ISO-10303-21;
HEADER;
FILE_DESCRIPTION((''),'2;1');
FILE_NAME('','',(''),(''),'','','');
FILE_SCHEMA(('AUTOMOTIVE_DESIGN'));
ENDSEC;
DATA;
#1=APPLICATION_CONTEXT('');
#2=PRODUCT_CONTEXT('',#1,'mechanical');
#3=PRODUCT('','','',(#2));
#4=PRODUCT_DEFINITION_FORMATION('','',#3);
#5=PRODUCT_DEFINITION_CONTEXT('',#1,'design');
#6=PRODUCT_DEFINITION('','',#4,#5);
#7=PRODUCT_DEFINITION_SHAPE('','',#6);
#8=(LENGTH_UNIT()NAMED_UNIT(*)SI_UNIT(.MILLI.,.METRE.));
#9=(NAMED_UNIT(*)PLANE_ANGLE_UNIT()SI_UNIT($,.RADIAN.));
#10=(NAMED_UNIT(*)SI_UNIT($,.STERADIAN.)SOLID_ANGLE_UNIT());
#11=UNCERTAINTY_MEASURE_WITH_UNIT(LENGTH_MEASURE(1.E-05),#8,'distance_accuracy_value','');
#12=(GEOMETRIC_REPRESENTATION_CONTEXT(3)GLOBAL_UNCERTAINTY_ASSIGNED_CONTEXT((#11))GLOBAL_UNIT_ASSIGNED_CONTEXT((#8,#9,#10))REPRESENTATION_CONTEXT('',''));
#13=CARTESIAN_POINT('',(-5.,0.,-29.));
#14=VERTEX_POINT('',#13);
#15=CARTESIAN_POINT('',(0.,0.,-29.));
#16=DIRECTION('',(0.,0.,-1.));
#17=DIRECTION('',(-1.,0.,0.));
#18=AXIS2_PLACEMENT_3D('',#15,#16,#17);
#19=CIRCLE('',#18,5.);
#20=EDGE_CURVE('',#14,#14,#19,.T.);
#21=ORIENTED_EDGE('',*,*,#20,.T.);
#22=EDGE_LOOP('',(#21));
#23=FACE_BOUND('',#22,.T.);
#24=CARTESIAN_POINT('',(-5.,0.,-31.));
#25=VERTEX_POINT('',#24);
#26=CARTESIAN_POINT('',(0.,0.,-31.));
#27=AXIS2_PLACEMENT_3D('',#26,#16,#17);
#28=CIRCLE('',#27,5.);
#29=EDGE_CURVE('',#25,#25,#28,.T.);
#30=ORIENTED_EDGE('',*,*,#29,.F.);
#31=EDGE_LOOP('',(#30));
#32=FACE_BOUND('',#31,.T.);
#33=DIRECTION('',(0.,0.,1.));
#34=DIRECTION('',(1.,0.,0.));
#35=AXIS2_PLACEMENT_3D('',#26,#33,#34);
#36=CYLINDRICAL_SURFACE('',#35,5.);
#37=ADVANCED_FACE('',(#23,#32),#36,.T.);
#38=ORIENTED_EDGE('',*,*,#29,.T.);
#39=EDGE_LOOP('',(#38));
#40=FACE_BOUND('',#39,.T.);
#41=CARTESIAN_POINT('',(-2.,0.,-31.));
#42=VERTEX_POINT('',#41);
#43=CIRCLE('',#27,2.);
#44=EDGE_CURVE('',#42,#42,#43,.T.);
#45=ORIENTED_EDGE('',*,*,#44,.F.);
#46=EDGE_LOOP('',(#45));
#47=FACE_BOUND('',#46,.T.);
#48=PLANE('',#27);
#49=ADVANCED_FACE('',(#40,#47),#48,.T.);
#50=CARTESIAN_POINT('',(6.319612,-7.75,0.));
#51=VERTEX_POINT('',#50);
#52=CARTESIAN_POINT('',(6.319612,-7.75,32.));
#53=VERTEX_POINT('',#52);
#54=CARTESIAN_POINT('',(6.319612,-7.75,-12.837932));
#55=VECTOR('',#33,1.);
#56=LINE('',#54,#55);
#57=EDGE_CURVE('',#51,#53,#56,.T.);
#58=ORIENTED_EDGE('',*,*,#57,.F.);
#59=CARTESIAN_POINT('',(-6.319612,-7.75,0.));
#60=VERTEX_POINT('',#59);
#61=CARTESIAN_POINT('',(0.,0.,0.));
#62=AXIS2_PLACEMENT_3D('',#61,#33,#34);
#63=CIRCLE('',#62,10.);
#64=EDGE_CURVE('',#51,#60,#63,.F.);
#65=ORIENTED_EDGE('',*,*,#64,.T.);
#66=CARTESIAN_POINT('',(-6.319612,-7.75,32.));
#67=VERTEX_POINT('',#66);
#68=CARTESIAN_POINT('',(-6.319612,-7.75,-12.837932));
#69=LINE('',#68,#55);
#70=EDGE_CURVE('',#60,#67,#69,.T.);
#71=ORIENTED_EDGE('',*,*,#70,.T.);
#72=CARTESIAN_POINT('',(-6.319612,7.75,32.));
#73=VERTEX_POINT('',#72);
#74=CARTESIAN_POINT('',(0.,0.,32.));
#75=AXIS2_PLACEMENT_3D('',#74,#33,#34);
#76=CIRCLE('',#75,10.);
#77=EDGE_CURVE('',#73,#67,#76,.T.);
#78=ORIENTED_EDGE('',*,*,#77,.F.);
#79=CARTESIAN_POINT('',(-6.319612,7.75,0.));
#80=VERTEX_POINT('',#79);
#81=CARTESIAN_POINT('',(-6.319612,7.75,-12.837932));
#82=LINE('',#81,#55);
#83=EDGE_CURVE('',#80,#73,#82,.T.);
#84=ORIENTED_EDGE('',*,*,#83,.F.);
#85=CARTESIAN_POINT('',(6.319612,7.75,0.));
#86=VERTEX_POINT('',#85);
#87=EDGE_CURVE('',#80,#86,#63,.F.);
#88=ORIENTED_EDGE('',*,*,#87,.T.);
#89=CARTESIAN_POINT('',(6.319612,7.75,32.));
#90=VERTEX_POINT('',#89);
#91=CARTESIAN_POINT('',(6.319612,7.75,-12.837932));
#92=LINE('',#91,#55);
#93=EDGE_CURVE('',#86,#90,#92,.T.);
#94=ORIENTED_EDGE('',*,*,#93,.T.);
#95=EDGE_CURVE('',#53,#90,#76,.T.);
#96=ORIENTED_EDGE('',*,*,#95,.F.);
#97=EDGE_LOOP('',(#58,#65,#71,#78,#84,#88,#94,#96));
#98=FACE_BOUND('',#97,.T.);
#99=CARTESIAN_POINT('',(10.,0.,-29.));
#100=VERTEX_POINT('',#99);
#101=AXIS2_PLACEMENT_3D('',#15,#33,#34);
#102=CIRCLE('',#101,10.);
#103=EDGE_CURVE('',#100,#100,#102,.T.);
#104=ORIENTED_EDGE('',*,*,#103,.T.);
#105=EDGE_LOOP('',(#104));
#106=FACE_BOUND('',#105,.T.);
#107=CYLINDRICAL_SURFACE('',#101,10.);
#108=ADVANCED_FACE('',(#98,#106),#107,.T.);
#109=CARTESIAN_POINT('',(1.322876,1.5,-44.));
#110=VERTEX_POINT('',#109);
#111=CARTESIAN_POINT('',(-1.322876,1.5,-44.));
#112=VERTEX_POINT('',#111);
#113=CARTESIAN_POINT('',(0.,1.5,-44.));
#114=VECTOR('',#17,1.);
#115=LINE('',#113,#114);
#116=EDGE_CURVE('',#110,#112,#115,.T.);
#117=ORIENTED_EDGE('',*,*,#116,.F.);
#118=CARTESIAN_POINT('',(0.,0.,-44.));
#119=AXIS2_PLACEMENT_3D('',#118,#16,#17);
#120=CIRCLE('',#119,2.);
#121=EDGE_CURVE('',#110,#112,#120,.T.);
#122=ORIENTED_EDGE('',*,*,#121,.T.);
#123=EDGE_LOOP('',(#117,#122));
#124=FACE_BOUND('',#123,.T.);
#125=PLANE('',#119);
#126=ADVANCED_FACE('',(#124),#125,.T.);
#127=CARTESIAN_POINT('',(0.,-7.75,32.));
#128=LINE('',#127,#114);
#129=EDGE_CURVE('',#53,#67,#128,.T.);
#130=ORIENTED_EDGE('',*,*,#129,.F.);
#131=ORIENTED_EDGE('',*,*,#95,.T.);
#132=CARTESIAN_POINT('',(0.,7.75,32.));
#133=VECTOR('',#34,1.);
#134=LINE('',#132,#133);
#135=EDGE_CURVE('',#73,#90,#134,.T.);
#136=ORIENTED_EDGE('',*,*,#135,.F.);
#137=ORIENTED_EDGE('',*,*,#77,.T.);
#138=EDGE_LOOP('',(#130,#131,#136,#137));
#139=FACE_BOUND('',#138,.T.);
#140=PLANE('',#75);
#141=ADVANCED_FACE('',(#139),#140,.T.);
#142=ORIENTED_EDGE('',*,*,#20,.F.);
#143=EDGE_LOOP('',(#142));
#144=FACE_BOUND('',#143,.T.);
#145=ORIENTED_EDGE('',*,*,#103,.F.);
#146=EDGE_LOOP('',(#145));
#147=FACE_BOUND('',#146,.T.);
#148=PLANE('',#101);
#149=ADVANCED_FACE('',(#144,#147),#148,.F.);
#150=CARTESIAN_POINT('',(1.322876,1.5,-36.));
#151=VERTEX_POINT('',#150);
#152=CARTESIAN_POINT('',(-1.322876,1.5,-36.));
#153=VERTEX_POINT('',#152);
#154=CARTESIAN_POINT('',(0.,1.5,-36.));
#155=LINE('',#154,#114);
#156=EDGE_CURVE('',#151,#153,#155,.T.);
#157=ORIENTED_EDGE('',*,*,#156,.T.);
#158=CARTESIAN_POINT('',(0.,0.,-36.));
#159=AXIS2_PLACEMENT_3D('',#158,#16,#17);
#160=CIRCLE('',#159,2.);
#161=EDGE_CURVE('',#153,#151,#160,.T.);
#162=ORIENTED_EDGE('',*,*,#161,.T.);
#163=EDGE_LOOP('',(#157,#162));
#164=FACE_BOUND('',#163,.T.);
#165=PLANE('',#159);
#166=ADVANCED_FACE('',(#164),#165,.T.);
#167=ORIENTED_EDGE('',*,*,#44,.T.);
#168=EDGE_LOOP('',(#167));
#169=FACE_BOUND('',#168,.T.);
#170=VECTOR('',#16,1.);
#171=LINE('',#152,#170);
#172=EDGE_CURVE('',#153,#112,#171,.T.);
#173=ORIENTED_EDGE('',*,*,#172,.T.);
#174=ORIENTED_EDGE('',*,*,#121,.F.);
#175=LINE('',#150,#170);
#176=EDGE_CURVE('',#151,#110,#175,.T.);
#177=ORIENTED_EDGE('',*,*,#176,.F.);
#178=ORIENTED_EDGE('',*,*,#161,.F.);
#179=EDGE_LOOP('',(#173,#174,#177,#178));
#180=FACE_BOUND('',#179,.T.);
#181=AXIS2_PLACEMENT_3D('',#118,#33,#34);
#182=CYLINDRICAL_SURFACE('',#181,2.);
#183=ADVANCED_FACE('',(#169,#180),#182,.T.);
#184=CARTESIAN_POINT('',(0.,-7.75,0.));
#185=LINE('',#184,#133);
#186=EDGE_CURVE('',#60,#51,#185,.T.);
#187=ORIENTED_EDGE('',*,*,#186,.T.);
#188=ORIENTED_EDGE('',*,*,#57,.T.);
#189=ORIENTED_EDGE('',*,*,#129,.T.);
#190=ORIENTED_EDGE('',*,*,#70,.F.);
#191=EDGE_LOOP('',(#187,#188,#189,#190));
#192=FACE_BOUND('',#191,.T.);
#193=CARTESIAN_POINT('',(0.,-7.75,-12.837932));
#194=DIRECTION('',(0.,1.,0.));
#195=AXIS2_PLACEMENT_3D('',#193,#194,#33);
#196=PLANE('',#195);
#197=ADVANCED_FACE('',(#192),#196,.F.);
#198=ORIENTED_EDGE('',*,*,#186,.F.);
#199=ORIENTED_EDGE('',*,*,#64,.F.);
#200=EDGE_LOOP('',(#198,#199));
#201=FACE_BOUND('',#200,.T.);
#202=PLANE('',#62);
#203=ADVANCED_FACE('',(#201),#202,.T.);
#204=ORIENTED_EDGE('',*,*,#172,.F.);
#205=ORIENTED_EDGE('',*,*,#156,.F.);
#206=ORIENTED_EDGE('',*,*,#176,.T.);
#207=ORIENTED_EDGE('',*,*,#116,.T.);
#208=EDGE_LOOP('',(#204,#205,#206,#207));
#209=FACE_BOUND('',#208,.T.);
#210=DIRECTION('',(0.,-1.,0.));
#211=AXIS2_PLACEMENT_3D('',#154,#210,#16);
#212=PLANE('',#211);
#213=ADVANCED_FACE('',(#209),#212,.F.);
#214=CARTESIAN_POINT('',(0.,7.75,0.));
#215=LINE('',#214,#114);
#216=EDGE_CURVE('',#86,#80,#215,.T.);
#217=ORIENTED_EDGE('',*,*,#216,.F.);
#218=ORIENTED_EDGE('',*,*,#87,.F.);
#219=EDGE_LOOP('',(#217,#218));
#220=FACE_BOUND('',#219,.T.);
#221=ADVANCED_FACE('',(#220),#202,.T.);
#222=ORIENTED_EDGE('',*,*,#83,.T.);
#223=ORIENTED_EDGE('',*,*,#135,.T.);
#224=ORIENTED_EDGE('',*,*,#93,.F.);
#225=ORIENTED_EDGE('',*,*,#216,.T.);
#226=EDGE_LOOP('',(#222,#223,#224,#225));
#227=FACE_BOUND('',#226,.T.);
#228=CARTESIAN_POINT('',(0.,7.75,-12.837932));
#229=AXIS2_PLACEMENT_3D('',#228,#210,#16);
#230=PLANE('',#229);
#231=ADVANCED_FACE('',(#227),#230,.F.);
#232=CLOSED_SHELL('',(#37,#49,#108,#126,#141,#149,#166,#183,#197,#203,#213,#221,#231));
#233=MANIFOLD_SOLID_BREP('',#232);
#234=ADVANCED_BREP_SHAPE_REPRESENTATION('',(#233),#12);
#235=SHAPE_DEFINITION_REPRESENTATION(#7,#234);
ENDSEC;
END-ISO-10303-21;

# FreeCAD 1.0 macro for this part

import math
import FreeCAD as App
import Part
import Sketcher
from FreeCAD import Vector
Q = App.Units.Quantity

doc = App.newDocument("Part")
body = doc.addObject("PartDesign::Body", "Body")

# Sketch on XY plane
sketch1 = doc.addObject("Sketcher::SketchObject", "Sketch")
body.addObject(sketch1)
sketch1.AttachmentSupport = (doc.XY_Plane, [""])
sketch1.MapMode = "FlatFace"
sketch1.addGeometry(Part.Circle(Vector(0, 0, 0), Vector(0, 0, 1), 10), False)
sketch1.addConstraint(Sketcher.Constraint("Coincident", 0, 3, -1, 1))
sketch1.addConstraint(Sketcher.Constraint("Diameter", 0, Q("20 mm")))
pad1 = doc.addObject("PartDesign::Pad", "Pad")
body.addObject(pad1)
pad1.Profile = sketch1
pad1.Type = "TwoLengths"
pad1.Length = 32
pad1.Length2 = 29

# Sketch on XY plane
sketch2 = doc.addObject("Sketcher::SketchObject", "Sketch001")
body.addObject(sketch2)
sketch2.AttachmentSupport = (doc.XY_Plane, [""])
sketch2.MapMode = "FlatFace"
sketch2.addGeometry(Part.LineSegment(Vector(6, -8, 0), Vector(-6, -8, 0)), False)
sketch2.addGeometry(Part.ArcOfCircle(Part.Circle(Vector(0, 0, 0), Vector(0, 0, 1), 10), math.radians(-129), math.radians(-51)), False)
sketch2.addGeometry(Part.ArcOfCircle(Part.Circle(Vector(0, 0, 0), Vector(0, 0, 1), 10), math.radians(51), math.radians(129)), False)
sketch2.addGeometry(Part.LineSegment(Vector(-6, 8, 0), Vector(6, 8, 0)), False)
sketch2.addConstraint(Sketcher.Constraint("Coincident", 0, 1, 1, 2))
sketch2.addConstraint(Sketcher.Constraint("Coincident", 1, 1, 0, 2))
sketch2.addConstraint(Sketcher.Constraint("Coincident", 2, 1, 3, 2))
sketch2.addConstraint(Sketcher.Constraint("Coincident", 3, 1, 2, 2))
sketch2.addConstraint(Sketcher.Constraint("Horizontal", 0))
sketch2.addConstraint(Sketcher.Constraint("Horizontal", 3))
sketch2.addConstraint(Sketcher.Constraint("Coincident", 1, 3, -1, 1))
sketch2.addConstraint(Sketcher.Constraint("Coincident", 2, 3, -1, 1))
sketch2.addConstraint(Sketcher.Constraint("Equal", 1, 2))
sketch2.addConstraint(Sketcher.Constraint("Vertical", 0, 1, 2, 1))
sketch2.addConstraint(Sketcher.Constraint("Radius", 1, Q("10 mm")))
sketch2.addConstraint(Sketcher.Constraint("DistanceY", 0, 1, 2, 1, Q("15.5 mm")))
pocket1 = doc.addObject("PartDesign::Pocket", "Pocket")
body.addObject(pocket1)
pocket1.Profile = sketch2
pocket1.Length = 32
pocket1.Reversed = True

# Sketch on XY plane
sketch3 = doc.addObject("Sketcher::SketchObject", "Sketch002")
body.addObject(sketch3)
sketch3.AttachmentSupport = (doc.XY_Plane, [""])
sketch3.MapMode = "FlatFace"
sketch3.AttachmentOffset = App.Placement(Vector(0, 0, -29), App.Rotation())
sketch3.addGeometry(Part.Circle(Vector(0, 0, 0), Vector(0, 0, 1), 5), False)
sketch3.addConstraint(Sketcher.Constraint("Coincident", 0, 3, -1, 1))
sketch3.addConstraint(Sketcher.Constraint("Diameter", 0, Q("10 mm")))
pad2 = doc.addObject("PartDesign::Pad", "Pad001")
body.addObject(pad2)
pad2.Profile = sketch3
pad2.Length = 2
pad2.Reversed = True

# Sketch on XY plane
sketch4 = doc.addObject("Sketcher::SketchObject", "Sketch003")
body.addObject(sketch4)
sketch4.AttachmentSupport = (doc.XY_Plane, [""])
sketch4.MapMode = "FlatFace"
sketch4.AttachmentOffset = App.Placement(Vector(0, 0, -31), App.Rotation())
sketch4.addGeometry(Part.Circle(Vector(0, 0, 0), Vector(0, 0, 1), 2), False)
sketch4.addConstraint(Sketcher.Constraint("Coincident", 0, 3, -1, 1))
sketch4.addConstraint(Sketcher.Constraint("Diameter", 0, Q("4 mm")))
pad3 = doc.addObject("PartDesign::Pad", "Pad002")
body.addObject(pad3)
pad3.Profile = sketch4
pad3.Length = 13
pad3.Reversed = True

# Sketch on XY plane
sketch5 = doc.addObject("Sketcher::SketchObject", "Sketch004")
body.addObject(sketch5)
sketch5.AttachmentSupport = (doc.XY_Plane, [""])
sketch5.MapMode = "FlatFace"
sketch5.AttachmentOffset = App.Placement(Vector(0, 0, -36), App.Rotation())
sketch5.addGeometry(Part.LineSegment(Vector(1.3, 1.5, 0), Vector(-1.3, 1.5, 0)), False)
sketch5.addGeometry(Part.ArcOfCircle(Part.Circle(Vector(0, 0, 0), Vector(0, 0, 1), 2), math.radians(49), math.radians(131)), False)
sketch5.addConstraint(Sketcher.Constraint("Coincident", 0, 1, 1, 1))
sketch5.addConstraint(Sketcher.Constraint("Coincident", 1, 2, 0, 2))
sketch5.addConstraint(Sketcher.Constraint("Horizontal", 0))
sketch5.addConstraint(Sketcher.Constraint("Coincident", 1, 3, -1, 1))
sketch5.addConstraint(Sketcher.Constraint("Radius", 1, Q("2 mm")))
sketch5.addConstraint(Sketcher.Constraint("DistanceY", -1, 1, 0, 1, Q("1.5 mm")))
pocket2 = doc.addObject("PartDesign::Pocket", "Pocket001")
body.addObject(pocket2)
pocket2.Profile = sketch5
pocket2.Length = 8

doc.recompute()
